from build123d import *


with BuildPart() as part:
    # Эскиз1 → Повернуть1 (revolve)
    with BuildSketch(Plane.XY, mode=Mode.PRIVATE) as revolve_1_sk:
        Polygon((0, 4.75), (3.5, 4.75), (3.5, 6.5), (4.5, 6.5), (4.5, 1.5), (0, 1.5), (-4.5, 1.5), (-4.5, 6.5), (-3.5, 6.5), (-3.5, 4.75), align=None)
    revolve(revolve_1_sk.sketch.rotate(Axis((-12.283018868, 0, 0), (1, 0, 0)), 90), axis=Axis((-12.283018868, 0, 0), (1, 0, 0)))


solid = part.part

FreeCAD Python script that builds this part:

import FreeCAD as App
import Part
import Sketcher

doc = App.newDocument("Part")
params = doc.addObject("Spreadsheet::Sheet", "Params")
for row, (alias, value) in enumerate([
    ("sketch1_width", "7 mm"),
    ("sketch1_width2", "1 mm"),
    ("sketch1_height", "5 mm"),
    ("sketch1_height2", "1.75 mm"),
    ("revolution_angle", "360 deg"),
], start=1):
    params.set(f"A{row}", alias)
    params.set(f"B{row}", "=" + value)
    params.setAlias(f"B{row}", alias)

body = doc.addObject("PartDesign::Body", "Body")

# Sketch on XY plane
sketch1 = body.newObject("Sketcher::SketchObject", "Sketch")
sketch1.AttachmentSupport = (doc.getObject("XY_Plane"), [""])
sketch1.MapMode = "FlatFace"
sketch1.addGeometry([
    Part.LineSegment(App.Vector(3.5, 4.8, 0), App.Vector(-3.5, 4.8, 0)),  # 0
    Part.LineSegment(App.Vector(-3.5, 4.8, 0), App.Vector(-3.5, 6.5, 0)),  # 1
    Part.LineSegment(App.Vector(-3.5, 6.5, 0), App.Vector(-4.5, 6.5, 0)),  # 2
    Part.LineSegment(App.Vector(-4.5, 6.5, 0), App.Vector(-4.5, 1.5, 0)),  # 3
    Part.LineSegment(App.Vector(-4.5, 1.5, 0), App.Vector(4.5, 1.5, 0)),  # 4
    Part.LineSegment(App.Vector(4.5, 1.5, 0), App.Vector(4.5, 6.5, 0)),  # 5
    Part.LineSegment(App.Vector(4.5, 6.5, 0), App.Vector(3.5, 6.5, 0)),  # 6
    Part.LineSegment(App.Vector(3.5, 6.5, 0), App.Vector(3.5, 4.8, 0)),  # 7
], False)
sketch1.addConstraint([
    Sketcher.Constraint("Coincident", 0, 2, 1, 1),
    Sketcher.Constraint("Coincident", 1, 2, 2, 1),
    Sketcher.Constraint("Coincident", 2, 2, 3, 1),
    Sketcher.Constraint("Coincident", 3, 2, 4, 1),
    Sketcher.Constraint("Coincident", 4, 2, 5, 1),
    Sketcher.Constraint("Coincident", 5, 2, 6, 1),
    Sketcher.Constraint("Coincident", 6, 2, 7, 1),
    Sketcher.Constraint("Coincident", 7, 2, 0, 1),
    Sketcher.Constraint("Horizontal", 0),
    Sketcher.Constraint("Vertical", 1),
    Sketcher.Constraint("Horizontal", 2),
    Sketcher.Constraint("Vertical", 3),
    Sketcher.Constraint("Horizontal", 4),
    Sketcher.Constraint("Vertical", 5),
    Sketcher.Constraint("Horizontal", 6),
    Sketcher.Constraint("Vertical", 7),
    Sketcher.Constraint("Symmetric", 2, 2, 5, 2, -2),
    Sketcher.Constraint("Equal", 2, 6),
    Sketcher.Constraint("DistanceX", 0, 2, 0, 1, 7.0),
    Sketcher.Constraint("DistanceX", 2, 2, 2, 1, 1.0),
    Sketcher.Constraint("DistanceY", 3, 2, 3, 1, 5.0),
    Sketcher.Constraint("DistanceY", 1, 1, 1, 2, 1.75),
    Sketcher.Constraint("DistanceY", -1, 1, 1, 2, 6.5),
])
sketch1.setExpression("Constraints[18]", "Params.sketch1_width")
sketch1.setExpression("Constraints[19]", "Params.sketch1_width2")
sketch1.setExpression("Constraints[20]", "Params.sketch1_height")
sketch1.setExpression("Constraints[21]", "Params.sketch1_height2")
revolution = body.newObject("PartDesign::Revolution", "Revolution")
revolution.Profile = sketch1
revolution.ReferenceAxis = (sketch1, ["H_Axis"])
revolution.setExpression("Angle", "Params.revolution_angle")

doc.recompute()
